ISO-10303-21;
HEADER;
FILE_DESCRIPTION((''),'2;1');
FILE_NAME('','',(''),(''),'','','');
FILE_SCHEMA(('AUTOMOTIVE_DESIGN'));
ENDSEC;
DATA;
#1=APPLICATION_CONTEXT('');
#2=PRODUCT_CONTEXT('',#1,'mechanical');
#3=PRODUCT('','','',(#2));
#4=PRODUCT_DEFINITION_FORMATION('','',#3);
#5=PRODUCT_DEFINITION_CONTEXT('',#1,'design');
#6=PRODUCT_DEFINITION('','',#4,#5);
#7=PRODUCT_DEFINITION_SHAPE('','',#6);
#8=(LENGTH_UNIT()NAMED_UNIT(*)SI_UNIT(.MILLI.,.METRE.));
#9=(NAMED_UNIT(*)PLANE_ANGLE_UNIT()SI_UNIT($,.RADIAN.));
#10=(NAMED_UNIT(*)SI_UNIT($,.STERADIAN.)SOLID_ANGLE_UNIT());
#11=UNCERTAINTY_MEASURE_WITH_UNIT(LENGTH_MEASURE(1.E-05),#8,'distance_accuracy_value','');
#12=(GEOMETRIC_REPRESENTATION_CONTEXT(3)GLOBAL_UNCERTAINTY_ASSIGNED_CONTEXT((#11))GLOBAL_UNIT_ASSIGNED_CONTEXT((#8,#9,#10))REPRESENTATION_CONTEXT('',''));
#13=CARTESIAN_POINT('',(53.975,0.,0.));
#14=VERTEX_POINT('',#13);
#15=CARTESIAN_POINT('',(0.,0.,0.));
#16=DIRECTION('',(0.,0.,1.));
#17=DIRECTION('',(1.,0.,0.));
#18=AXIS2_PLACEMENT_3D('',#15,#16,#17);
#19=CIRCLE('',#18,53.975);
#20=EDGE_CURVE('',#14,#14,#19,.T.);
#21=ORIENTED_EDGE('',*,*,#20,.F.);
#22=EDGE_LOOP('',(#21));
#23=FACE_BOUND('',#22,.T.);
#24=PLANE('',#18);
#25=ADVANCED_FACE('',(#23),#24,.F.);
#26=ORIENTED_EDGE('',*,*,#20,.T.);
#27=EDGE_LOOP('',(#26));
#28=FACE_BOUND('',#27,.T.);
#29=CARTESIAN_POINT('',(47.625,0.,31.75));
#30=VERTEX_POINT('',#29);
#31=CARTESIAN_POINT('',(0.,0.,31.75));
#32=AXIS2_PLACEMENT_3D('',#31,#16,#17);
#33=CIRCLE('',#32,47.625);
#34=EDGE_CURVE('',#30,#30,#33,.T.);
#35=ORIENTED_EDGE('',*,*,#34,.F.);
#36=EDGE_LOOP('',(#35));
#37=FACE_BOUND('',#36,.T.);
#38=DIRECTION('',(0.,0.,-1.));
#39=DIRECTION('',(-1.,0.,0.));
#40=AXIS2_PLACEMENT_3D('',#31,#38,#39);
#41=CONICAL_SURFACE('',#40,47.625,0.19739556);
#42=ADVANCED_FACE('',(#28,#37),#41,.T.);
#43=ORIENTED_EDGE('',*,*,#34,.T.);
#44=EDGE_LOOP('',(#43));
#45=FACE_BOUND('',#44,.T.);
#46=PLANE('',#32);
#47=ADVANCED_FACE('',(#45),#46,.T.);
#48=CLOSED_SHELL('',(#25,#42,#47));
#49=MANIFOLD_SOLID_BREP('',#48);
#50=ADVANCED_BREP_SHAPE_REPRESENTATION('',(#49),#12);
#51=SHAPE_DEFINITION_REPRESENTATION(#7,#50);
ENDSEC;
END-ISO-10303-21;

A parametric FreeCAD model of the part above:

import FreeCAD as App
import Part
import Sketcher
Q = App.Units.Quantity

doc = App.newDocument("Part")
body = doc.addObject("PartDesign::Body", "Body")

sketch1 = body.newObject("Sketcher::SketchObject", "Sketch")
sketch1.AttachmentSupport = (doc.getObject("XY_Plane"), [""])
sketch1.MapMode = "FlatFace"
sketch1.addGeometry(Part.Circle(App.Vector(0, 0, 0), App.Vector(0, 0, 1), 54), False)
sketch1.addConstraint([
    Sketcher.Constraint("Coincident", 0, 3, -1, 1),
    Sketcher.Constraint("Diameter", 0, Q("4.25 in")),
])

sketch2 = body.newObject("Sketcher::SketchObject", "Sketch001")
sketch2.AttachmentSupport = (doc.getObject("XY_Plane"), [""])
sketch2.MapMode = "FlatFace"
sketch2.AttachmentOffset = App.Placement(App.Vector(0, 0, 1.25 * 25.4), App.Rotation())
sketch2.addGeometry(Part.Circle(App.Vector(0, 0, 0), App.Vector(0, 0, 1), 48), False)
sketch2.addConstraint([
    Sketcher.Constraint("Coincident", 0, 3, -1, 1),
    Sketcher.Constraint("Diameter", 0, Q("3.75 in")),
])

additiveloft = body.newObject("PartDesign::AdditiveLoft", "AdditiveLoft")
additiveloft.Profile = sketch1
additiveloft.Sections = [sketch2]

doc.recompute()
